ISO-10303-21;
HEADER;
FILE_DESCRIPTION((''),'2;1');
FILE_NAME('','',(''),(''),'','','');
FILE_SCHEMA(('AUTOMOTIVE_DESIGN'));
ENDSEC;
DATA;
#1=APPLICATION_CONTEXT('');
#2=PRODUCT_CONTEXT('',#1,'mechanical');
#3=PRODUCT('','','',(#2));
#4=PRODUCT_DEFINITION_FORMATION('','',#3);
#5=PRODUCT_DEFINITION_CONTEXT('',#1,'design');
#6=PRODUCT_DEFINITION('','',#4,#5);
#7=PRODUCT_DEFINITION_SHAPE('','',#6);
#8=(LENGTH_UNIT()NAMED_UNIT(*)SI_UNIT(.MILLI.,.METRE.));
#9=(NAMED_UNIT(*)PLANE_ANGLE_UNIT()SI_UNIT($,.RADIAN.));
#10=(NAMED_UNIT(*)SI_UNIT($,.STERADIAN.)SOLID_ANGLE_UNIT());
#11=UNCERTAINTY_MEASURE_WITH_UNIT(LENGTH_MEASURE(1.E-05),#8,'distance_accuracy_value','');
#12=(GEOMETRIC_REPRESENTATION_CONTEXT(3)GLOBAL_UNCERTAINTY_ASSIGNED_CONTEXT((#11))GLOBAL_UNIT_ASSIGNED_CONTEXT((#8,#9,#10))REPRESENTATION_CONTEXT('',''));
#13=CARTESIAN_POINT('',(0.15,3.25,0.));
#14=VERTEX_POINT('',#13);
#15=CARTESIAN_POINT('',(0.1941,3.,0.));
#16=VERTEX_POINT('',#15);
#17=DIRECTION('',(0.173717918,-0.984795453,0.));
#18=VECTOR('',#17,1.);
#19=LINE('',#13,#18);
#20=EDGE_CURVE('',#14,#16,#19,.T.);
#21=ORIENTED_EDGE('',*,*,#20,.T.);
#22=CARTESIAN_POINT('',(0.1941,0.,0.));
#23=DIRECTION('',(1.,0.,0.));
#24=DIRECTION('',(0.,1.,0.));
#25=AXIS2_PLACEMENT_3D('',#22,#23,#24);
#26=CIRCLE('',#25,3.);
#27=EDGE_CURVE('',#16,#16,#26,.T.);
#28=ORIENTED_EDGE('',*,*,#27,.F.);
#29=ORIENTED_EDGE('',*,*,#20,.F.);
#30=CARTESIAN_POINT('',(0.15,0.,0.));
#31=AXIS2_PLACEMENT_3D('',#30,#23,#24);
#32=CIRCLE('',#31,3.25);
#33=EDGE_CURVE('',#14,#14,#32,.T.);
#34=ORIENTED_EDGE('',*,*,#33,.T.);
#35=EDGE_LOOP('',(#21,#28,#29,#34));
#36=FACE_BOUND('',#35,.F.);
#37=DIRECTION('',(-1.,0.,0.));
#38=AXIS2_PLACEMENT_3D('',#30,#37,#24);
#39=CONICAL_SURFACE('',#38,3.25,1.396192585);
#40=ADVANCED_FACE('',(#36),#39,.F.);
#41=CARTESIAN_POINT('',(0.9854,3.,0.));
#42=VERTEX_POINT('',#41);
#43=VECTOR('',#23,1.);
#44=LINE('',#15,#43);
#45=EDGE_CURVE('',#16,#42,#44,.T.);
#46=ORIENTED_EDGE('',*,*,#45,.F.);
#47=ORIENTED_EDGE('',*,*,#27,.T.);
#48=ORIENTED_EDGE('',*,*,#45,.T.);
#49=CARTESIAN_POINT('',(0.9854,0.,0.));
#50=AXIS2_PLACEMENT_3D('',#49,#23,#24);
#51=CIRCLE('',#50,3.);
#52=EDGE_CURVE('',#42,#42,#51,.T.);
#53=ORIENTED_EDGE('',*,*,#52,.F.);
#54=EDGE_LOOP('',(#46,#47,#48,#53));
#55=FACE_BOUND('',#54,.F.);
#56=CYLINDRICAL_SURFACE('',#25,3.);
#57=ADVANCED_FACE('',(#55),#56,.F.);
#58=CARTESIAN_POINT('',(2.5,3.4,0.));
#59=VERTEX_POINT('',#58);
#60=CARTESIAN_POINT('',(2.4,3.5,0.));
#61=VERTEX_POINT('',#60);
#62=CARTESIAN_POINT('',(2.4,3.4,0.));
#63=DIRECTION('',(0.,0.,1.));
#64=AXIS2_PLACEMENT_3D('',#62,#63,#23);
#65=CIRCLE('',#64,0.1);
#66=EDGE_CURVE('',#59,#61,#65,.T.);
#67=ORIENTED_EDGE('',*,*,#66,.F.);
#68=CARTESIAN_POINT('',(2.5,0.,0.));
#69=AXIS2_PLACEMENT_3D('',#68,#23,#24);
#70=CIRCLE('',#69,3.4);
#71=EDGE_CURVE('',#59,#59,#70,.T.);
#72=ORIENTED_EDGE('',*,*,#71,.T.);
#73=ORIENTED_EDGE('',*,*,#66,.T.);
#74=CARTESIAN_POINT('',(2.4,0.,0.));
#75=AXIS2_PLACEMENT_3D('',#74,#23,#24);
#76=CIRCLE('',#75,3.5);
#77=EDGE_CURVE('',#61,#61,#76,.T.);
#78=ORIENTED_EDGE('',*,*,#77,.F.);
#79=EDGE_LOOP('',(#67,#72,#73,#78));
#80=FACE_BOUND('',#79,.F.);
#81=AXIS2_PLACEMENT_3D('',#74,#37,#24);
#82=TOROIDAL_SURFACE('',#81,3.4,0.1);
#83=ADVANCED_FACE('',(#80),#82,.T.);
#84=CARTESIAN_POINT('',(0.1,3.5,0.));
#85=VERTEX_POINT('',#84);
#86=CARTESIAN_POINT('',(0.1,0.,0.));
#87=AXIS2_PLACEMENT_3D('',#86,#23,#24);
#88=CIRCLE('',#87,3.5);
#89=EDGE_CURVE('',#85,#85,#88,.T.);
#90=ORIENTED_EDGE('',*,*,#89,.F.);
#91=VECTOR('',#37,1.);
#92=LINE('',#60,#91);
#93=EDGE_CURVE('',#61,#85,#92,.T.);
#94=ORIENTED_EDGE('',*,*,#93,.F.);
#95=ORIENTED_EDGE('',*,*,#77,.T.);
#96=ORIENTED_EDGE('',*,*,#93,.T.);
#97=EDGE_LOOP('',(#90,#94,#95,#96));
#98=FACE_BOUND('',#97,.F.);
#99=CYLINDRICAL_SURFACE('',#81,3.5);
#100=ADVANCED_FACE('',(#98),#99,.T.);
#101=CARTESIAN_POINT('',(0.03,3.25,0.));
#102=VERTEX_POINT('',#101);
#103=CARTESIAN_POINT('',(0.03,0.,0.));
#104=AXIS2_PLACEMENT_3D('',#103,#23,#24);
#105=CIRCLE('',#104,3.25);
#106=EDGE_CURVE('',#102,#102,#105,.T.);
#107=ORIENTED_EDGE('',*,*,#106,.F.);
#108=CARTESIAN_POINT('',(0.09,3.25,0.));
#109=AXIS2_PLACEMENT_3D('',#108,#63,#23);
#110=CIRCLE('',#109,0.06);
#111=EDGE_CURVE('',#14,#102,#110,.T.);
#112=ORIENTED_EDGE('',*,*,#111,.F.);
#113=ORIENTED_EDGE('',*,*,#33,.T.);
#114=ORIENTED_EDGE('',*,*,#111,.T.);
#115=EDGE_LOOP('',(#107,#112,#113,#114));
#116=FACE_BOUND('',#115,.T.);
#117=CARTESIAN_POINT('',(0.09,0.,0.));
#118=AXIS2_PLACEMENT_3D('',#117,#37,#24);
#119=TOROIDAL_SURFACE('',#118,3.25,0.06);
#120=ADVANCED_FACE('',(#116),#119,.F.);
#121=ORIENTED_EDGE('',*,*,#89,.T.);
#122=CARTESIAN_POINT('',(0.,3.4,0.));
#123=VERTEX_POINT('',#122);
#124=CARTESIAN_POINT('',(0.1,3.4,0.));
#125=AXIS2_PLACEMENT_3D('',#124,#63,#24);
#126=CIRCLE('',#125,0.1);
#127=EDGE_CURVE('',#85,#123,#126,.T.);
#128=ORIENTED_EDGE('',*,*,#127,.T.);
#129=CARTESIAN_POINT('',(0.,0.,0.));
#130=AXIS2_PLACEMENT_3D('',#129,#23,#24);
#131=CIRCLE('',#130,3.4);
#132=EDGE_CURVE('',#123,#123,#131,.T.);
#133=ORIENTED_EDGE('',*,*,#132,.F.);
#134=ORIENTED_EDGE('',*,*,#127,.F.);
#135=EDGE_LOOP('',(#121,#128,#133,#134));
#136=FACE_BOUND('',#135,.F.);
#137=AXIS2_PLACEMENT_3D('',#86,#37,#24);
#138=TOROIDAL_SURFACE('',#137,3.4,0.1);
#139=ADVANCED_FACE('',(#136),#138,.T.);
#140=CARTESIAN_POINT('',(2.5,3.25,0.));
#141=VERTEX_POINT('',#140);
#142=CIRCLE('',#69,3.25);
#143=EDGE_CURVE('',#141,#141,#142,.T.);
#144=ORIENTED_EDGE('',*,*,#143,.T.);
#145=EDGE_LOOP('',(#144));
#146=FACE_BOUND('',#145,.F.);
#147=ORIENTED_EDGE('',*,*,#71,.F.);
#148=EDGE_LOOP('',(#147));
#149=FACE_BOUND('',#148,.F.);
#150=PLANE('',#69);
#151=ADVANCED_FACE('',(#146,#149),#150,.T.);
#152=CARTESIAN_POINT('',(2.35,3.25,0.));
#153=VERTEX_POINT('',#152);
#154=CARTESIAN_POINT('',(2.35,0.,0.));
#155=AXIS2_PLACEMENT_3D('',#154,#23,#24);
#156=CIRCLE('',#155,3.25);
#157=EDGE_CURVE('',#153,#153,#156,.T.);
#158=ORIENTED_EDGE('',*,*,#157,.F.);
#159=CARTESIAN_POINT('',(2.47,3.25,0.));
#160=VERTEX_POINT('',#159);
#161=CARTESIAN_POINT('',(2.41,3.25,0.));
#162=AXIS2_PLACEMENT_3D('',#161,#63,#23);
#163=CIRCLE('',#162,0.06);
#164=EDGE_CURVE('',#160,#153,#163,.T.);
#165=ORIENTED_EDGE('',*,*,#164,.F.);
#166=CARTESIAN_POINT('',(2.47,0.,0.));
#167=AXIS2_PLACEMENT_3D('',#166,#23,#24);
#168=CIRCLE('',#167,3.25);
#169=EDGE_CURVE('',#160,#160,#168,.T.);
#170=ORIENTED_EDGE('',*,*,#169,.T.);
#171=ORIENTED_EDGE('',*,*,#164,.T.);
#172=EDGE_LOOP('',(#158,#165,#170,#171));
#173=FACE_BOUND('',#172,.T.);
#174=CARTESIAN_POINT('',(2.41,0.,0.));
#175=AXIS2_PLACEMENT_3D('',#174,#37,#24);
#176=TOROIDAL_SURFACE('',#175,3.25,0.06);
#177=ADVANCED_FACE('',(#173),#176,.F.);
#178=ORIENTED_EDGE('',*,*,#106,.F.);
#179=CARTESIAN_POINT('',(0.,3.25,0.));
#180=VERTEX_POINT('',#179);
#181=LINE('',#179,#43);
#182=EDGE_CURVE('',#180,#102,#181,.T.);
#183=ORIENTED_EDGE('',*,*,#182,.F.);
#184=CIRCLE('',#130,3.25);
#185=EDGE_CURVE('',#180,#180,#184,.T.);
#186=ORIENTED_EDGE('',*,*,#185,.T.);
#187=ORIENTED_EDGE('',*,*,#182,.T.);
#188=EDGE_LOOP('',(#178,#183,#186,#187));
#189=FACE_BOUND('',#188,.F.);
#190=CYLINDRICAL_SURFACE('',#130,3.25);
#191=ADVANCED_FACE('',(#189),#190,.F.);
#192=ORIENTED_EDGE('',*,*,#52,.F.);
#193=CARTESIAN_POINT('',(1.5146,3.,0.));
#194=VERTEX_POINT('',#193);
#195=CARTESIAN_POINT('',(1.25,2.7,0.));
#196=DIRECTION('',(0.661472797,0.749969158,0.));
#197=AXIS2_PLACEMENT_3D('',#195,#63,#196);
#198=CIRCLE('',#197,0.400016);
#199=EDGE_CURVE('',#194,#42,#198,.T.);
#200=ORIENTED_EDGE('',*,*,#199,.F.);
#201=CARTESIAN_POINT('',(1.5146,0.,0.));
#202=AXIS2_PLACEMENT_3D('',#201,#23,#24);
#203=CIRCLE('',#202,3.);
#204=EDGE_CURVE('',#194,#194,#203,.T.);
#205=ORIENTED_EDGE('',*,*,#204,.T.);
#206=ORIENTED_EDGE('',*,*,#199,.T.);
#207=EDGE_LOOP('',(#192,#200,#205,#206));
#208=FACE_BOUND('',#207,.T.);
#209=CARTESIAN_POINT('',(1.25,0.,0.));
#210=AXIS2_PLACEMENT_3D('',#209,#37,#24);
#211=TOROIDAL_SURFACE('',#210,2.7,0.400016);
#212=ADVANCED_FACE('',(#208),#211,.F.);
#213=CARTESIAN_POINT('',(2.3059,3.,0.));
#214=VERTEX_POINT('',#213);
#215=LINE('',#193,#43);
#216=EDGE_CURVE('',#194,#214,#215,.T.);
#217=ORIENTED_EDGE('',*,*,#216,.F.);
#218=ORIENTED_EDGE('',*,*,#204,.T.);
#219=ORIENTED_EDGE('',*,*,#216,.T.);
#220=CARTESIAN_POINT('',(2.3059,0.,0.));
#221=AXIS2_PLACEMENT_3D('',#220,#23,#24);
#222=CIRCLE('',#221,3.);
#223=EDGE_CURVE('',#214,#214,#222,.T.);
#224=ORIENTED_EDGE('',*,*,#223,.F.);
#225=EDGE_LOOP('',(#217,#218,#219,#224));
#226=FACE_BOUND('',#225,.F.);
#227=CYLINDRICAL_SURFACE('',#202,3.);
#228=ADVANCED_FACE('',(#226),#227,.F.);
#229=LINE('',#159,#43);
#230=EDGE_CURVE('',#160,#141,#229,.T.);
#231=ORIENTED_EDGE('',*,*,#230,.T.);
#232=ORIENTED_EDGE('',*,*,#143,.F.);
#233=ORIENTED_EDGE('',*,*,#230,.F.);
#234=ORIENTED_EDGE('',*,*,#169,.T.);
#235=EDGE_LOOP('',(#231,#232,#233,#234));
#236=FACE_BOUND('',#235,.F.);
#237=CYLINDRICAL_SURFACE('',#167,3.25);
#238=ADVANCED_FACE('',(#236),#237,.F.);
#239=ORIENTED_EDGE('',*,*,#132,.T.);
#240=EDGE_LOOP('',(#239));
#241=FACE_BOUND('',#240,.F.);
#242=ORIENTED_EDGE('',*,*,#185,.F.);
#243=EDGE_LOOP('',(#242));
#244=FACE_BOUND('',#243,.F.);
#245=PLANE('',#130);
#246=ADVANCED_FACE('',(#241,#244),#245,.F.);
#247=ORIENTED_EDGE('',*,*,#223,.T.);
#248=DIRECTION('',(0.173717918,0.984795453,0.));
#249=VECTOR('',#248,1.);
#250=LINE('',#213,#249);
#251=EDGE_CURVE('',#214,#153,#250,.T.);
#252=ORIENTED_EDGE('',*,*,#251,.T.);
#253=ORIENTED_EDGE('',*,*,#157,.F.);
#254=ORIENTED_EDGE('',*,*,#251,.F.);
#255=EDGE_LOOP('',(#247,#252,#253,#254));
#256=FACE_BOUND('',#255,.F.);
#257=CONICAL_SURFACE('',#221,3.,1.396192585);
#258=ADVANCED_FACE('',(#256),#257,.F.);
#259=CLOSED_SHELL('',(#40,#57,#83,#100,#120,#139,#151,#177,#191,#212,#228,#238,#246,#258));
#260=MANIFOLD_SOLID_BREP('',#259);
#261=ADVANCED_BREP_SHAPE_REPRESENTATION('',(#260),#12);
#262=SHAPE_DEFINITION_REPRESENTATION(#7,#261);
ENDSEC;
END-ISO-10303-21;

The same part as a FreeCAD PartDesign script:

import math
import FreeCAD as App
import Part
import Sketcher

doc = App.newDocument("Part")
params = doc.addObject("Spreadsheet::Sheet", "Params")
for row, (alias, value) in enumerate([
    ("sketch1_radius", "0.1 mm"),
    ("sketch1_radius2", "0.4 mm"),
    ("sketch1_radius3", "0.06 mm"),
    ("sketch1_width", "2.3 mm"),
    ("sketch1_width2", "0.03 mm"),
    ("revolution_angle", "360 deg"),
], start=1):
    params.set(f"A{row}", alias)
    params.set(f"B{row}", "=" + value)
    params.setAlias(f"B{row}", alias)

body = doc.addObject("PartDesign::Body", "Body")

sketch1 = doc.addObject("Sketcher::SketchObject", "Sketch")
body.addObject(sketch1)
sketch1.AttachmentSupport = (doc.XY_Plane, [""])
sketch1.MapMode = "FlatFace"
sketch1.addGeometry([
    Part.ArcOfCircle(Part.Circle(App.Vector(0.1, 3.4, 0), App.Vector(0, 0, 1), 0.1), math.radians(90), math.radians(180)),
    Part.LineSegment(App.Vector(0, 3.4, 0), App.Vector(0, 3.25, 0)),
    Part.LineSegment(App.Vector(0, 3.25, 0), App.Vector(0.03, 3.25, 0)),
    Part.ArcOfCircle(Part.Circle(App.Vector(0.09, 3.25, 0), App.Vector(0, 0, 1), 0.06), math.radians(0), math.radians(180)),
    Part.LineSegment(App.Vector(0.15, 3.25, 0), App.Vector(0.194, 3, 0)),
    Part.LineSegment(App.Vector(0.194, 3, 0), App.Vector(0.985, 3, 0)),
    Part.ArcOfCircle(Part.Circle(App.Vector(1.25, 2.7, 0), App.Vector(0, 0, 1), 0.4), math.radians(49), math.radians(131)),
    Part.LineSegment(App.Vector(1.515, 3, 0), App.Vector(2.306, 3, 0)),
    Part.LineSegment(App.Vector(2.306, 3, 0), App.Vector(2.35, 3.25, 0)),
    Part.ArcOfCircle(Part.Circle(App.Vector(2.41, 3.25, 0), App.Vector(0, 0, 1), 0.06), math.radians(0), math.radians(180)),
    Part.LineSegment(App.Vector(2.47, 3.25, 0), App.Vector(2.5, 3.25, 0)),
    Part.LineSegment(App.Vector(2.5, 3.25, 0), App.Vector(2.5, 3.4, 0)),
    Part.ArcOfCircle(Part.Circle(App.Vector(2.4, 3.4, 0), App.Vector(0, 0, 1), 0.1), math.radians(0), math.radians(90)),
    Part.LineSegment(App.Vector(2.4, 3.5, 0), App.Vector(0.1, 3.5, 0)),
], False)
sketch1.addConstraint([
    Sketcher.Constraint("Tangent", 0, 2, 1, 1),
    Sketcher.Constraint("Coincident", 1, 2, 2, 1),
    Sketcher.Constraint("Coincident", 2, 2, 3, 2),
    Sketcher.Constraint("Coincident", 3, 1, 4, 1),
    Sketcher.Constraint("Coincident", 4, 2, 5, 1),
    Sketcher.Constraint("Coincident", 5, 2, 6, 2),
    Sketcher.Constraint("Coincident", 6, 1, 7, 1),
    Sketcher.Constraint("Coincident", 7, 2, 8, 1),
    Sketcher.Constraint("Coincident", 8, 2, 9, 2),
    Sketcher.Constraint("Coincident", 9, 1, 10, 1),
    Sketcher.Constraint("Coincident", 10, 2, 11, 1),
    Sketcher.Constraint("Tangent", 11, 2, 12, 1),
    Sketcher.Constraint("Tangent", 12, 2, 13, 1),
    Sketcher.Constraint("Tangent", 13, 2, 0, 1),
    Sketcher.Constraint("Vertical", 1),
    Sketcher.Constraint("Horizontal", 2),
    Sketcher.Constraint("Horizontal", 5),
    Sketcher.Constraint("Horizontal", 7),
    Sketcher.Constraint("Horizontal", 10),
    Sketcher.Constraint("Vertical", 11),
    Sketcher.Constraint("Horizontal", 13),
    Sketcher.Constraint("Equal", 3, 9),
    Sketcher.Constraint("Equal", 0, 12),
    Sketcher.Constraint("PointOnObject", 0, 2, -2),
    Sketcher.Constraint("Horizontal", 3, 3, 9, 3),
    Sketcher.Constraint("Horizontal", 9, 3, 1, 2),
    Sketcher.Constraint("Horizontal", 2, 2, 3, 1),
    Sketcher.Constraint("Horizontal", 5, 2, 6, 1),
    Sketcher.Constraint("Horizontal", 3, 1, 8, 2),
    Sketcher.Constraint("Horizontal", 8, 2, 9, 1),
    Sketcher.Constraint("Equal", 5, 7),
    Sketcher.Constraint("Equal", 2, 10),
    Sketcher.Constraint("Equal", 4, 8),
    Sketcher.Constraint("Radius", 0, 0.1),
    Sketcher.Constraint("Radius", 6, 0.4),
    Sketcher.Constraint("Radius", 3, 0.06),
    Sketcher.Constraint("DistanceX", 13, 2, 13, 1, 2.3),
    Sketcher.Constraint("DistanceY", -1, 1, 4, 2, 3.0),
    Sketcher.Constraint("DistanceX", 2, 1, 2, 2, 0.03),
    Sketcher.Constraint("DistanceY", 1, 2, 1, 1, 0.15),
    Sketcher.Constraint("DistanceY", -1, 1, 0, 3, 3.4),
    Sketcher.Constraint("DistanceY", -1, 1, 6, 3, 2.7),
    Sketcher.Constraint("DistanceX", 5, 1, 5, 2, 0.7913),
])
sketch1.setExpression("Constraints[33]", "Params.sketch1_radius")
sketch1.setExpression("Constraints[34]", "Params.sketch1_radius2")
sketch1.setExpression("Constraints[35]", "Params.sketch1_radius3")
sketch1.setExpression("Constraints[36]", "Params.sketch1_width")
sketch1.setExpression("Constraints[38]", "Params.sketch1_width2")
revolution = doc.addObject("PartDesign::Revolution", "Revolution")
body.addObject(revolution)
revolution.Profile = sketch1
revolution.ReferenceAxis = (sketch1, ["H_Axis"])
revolution.setExpression("Angle", "Params.revolution_angle")

doc.recompute()
